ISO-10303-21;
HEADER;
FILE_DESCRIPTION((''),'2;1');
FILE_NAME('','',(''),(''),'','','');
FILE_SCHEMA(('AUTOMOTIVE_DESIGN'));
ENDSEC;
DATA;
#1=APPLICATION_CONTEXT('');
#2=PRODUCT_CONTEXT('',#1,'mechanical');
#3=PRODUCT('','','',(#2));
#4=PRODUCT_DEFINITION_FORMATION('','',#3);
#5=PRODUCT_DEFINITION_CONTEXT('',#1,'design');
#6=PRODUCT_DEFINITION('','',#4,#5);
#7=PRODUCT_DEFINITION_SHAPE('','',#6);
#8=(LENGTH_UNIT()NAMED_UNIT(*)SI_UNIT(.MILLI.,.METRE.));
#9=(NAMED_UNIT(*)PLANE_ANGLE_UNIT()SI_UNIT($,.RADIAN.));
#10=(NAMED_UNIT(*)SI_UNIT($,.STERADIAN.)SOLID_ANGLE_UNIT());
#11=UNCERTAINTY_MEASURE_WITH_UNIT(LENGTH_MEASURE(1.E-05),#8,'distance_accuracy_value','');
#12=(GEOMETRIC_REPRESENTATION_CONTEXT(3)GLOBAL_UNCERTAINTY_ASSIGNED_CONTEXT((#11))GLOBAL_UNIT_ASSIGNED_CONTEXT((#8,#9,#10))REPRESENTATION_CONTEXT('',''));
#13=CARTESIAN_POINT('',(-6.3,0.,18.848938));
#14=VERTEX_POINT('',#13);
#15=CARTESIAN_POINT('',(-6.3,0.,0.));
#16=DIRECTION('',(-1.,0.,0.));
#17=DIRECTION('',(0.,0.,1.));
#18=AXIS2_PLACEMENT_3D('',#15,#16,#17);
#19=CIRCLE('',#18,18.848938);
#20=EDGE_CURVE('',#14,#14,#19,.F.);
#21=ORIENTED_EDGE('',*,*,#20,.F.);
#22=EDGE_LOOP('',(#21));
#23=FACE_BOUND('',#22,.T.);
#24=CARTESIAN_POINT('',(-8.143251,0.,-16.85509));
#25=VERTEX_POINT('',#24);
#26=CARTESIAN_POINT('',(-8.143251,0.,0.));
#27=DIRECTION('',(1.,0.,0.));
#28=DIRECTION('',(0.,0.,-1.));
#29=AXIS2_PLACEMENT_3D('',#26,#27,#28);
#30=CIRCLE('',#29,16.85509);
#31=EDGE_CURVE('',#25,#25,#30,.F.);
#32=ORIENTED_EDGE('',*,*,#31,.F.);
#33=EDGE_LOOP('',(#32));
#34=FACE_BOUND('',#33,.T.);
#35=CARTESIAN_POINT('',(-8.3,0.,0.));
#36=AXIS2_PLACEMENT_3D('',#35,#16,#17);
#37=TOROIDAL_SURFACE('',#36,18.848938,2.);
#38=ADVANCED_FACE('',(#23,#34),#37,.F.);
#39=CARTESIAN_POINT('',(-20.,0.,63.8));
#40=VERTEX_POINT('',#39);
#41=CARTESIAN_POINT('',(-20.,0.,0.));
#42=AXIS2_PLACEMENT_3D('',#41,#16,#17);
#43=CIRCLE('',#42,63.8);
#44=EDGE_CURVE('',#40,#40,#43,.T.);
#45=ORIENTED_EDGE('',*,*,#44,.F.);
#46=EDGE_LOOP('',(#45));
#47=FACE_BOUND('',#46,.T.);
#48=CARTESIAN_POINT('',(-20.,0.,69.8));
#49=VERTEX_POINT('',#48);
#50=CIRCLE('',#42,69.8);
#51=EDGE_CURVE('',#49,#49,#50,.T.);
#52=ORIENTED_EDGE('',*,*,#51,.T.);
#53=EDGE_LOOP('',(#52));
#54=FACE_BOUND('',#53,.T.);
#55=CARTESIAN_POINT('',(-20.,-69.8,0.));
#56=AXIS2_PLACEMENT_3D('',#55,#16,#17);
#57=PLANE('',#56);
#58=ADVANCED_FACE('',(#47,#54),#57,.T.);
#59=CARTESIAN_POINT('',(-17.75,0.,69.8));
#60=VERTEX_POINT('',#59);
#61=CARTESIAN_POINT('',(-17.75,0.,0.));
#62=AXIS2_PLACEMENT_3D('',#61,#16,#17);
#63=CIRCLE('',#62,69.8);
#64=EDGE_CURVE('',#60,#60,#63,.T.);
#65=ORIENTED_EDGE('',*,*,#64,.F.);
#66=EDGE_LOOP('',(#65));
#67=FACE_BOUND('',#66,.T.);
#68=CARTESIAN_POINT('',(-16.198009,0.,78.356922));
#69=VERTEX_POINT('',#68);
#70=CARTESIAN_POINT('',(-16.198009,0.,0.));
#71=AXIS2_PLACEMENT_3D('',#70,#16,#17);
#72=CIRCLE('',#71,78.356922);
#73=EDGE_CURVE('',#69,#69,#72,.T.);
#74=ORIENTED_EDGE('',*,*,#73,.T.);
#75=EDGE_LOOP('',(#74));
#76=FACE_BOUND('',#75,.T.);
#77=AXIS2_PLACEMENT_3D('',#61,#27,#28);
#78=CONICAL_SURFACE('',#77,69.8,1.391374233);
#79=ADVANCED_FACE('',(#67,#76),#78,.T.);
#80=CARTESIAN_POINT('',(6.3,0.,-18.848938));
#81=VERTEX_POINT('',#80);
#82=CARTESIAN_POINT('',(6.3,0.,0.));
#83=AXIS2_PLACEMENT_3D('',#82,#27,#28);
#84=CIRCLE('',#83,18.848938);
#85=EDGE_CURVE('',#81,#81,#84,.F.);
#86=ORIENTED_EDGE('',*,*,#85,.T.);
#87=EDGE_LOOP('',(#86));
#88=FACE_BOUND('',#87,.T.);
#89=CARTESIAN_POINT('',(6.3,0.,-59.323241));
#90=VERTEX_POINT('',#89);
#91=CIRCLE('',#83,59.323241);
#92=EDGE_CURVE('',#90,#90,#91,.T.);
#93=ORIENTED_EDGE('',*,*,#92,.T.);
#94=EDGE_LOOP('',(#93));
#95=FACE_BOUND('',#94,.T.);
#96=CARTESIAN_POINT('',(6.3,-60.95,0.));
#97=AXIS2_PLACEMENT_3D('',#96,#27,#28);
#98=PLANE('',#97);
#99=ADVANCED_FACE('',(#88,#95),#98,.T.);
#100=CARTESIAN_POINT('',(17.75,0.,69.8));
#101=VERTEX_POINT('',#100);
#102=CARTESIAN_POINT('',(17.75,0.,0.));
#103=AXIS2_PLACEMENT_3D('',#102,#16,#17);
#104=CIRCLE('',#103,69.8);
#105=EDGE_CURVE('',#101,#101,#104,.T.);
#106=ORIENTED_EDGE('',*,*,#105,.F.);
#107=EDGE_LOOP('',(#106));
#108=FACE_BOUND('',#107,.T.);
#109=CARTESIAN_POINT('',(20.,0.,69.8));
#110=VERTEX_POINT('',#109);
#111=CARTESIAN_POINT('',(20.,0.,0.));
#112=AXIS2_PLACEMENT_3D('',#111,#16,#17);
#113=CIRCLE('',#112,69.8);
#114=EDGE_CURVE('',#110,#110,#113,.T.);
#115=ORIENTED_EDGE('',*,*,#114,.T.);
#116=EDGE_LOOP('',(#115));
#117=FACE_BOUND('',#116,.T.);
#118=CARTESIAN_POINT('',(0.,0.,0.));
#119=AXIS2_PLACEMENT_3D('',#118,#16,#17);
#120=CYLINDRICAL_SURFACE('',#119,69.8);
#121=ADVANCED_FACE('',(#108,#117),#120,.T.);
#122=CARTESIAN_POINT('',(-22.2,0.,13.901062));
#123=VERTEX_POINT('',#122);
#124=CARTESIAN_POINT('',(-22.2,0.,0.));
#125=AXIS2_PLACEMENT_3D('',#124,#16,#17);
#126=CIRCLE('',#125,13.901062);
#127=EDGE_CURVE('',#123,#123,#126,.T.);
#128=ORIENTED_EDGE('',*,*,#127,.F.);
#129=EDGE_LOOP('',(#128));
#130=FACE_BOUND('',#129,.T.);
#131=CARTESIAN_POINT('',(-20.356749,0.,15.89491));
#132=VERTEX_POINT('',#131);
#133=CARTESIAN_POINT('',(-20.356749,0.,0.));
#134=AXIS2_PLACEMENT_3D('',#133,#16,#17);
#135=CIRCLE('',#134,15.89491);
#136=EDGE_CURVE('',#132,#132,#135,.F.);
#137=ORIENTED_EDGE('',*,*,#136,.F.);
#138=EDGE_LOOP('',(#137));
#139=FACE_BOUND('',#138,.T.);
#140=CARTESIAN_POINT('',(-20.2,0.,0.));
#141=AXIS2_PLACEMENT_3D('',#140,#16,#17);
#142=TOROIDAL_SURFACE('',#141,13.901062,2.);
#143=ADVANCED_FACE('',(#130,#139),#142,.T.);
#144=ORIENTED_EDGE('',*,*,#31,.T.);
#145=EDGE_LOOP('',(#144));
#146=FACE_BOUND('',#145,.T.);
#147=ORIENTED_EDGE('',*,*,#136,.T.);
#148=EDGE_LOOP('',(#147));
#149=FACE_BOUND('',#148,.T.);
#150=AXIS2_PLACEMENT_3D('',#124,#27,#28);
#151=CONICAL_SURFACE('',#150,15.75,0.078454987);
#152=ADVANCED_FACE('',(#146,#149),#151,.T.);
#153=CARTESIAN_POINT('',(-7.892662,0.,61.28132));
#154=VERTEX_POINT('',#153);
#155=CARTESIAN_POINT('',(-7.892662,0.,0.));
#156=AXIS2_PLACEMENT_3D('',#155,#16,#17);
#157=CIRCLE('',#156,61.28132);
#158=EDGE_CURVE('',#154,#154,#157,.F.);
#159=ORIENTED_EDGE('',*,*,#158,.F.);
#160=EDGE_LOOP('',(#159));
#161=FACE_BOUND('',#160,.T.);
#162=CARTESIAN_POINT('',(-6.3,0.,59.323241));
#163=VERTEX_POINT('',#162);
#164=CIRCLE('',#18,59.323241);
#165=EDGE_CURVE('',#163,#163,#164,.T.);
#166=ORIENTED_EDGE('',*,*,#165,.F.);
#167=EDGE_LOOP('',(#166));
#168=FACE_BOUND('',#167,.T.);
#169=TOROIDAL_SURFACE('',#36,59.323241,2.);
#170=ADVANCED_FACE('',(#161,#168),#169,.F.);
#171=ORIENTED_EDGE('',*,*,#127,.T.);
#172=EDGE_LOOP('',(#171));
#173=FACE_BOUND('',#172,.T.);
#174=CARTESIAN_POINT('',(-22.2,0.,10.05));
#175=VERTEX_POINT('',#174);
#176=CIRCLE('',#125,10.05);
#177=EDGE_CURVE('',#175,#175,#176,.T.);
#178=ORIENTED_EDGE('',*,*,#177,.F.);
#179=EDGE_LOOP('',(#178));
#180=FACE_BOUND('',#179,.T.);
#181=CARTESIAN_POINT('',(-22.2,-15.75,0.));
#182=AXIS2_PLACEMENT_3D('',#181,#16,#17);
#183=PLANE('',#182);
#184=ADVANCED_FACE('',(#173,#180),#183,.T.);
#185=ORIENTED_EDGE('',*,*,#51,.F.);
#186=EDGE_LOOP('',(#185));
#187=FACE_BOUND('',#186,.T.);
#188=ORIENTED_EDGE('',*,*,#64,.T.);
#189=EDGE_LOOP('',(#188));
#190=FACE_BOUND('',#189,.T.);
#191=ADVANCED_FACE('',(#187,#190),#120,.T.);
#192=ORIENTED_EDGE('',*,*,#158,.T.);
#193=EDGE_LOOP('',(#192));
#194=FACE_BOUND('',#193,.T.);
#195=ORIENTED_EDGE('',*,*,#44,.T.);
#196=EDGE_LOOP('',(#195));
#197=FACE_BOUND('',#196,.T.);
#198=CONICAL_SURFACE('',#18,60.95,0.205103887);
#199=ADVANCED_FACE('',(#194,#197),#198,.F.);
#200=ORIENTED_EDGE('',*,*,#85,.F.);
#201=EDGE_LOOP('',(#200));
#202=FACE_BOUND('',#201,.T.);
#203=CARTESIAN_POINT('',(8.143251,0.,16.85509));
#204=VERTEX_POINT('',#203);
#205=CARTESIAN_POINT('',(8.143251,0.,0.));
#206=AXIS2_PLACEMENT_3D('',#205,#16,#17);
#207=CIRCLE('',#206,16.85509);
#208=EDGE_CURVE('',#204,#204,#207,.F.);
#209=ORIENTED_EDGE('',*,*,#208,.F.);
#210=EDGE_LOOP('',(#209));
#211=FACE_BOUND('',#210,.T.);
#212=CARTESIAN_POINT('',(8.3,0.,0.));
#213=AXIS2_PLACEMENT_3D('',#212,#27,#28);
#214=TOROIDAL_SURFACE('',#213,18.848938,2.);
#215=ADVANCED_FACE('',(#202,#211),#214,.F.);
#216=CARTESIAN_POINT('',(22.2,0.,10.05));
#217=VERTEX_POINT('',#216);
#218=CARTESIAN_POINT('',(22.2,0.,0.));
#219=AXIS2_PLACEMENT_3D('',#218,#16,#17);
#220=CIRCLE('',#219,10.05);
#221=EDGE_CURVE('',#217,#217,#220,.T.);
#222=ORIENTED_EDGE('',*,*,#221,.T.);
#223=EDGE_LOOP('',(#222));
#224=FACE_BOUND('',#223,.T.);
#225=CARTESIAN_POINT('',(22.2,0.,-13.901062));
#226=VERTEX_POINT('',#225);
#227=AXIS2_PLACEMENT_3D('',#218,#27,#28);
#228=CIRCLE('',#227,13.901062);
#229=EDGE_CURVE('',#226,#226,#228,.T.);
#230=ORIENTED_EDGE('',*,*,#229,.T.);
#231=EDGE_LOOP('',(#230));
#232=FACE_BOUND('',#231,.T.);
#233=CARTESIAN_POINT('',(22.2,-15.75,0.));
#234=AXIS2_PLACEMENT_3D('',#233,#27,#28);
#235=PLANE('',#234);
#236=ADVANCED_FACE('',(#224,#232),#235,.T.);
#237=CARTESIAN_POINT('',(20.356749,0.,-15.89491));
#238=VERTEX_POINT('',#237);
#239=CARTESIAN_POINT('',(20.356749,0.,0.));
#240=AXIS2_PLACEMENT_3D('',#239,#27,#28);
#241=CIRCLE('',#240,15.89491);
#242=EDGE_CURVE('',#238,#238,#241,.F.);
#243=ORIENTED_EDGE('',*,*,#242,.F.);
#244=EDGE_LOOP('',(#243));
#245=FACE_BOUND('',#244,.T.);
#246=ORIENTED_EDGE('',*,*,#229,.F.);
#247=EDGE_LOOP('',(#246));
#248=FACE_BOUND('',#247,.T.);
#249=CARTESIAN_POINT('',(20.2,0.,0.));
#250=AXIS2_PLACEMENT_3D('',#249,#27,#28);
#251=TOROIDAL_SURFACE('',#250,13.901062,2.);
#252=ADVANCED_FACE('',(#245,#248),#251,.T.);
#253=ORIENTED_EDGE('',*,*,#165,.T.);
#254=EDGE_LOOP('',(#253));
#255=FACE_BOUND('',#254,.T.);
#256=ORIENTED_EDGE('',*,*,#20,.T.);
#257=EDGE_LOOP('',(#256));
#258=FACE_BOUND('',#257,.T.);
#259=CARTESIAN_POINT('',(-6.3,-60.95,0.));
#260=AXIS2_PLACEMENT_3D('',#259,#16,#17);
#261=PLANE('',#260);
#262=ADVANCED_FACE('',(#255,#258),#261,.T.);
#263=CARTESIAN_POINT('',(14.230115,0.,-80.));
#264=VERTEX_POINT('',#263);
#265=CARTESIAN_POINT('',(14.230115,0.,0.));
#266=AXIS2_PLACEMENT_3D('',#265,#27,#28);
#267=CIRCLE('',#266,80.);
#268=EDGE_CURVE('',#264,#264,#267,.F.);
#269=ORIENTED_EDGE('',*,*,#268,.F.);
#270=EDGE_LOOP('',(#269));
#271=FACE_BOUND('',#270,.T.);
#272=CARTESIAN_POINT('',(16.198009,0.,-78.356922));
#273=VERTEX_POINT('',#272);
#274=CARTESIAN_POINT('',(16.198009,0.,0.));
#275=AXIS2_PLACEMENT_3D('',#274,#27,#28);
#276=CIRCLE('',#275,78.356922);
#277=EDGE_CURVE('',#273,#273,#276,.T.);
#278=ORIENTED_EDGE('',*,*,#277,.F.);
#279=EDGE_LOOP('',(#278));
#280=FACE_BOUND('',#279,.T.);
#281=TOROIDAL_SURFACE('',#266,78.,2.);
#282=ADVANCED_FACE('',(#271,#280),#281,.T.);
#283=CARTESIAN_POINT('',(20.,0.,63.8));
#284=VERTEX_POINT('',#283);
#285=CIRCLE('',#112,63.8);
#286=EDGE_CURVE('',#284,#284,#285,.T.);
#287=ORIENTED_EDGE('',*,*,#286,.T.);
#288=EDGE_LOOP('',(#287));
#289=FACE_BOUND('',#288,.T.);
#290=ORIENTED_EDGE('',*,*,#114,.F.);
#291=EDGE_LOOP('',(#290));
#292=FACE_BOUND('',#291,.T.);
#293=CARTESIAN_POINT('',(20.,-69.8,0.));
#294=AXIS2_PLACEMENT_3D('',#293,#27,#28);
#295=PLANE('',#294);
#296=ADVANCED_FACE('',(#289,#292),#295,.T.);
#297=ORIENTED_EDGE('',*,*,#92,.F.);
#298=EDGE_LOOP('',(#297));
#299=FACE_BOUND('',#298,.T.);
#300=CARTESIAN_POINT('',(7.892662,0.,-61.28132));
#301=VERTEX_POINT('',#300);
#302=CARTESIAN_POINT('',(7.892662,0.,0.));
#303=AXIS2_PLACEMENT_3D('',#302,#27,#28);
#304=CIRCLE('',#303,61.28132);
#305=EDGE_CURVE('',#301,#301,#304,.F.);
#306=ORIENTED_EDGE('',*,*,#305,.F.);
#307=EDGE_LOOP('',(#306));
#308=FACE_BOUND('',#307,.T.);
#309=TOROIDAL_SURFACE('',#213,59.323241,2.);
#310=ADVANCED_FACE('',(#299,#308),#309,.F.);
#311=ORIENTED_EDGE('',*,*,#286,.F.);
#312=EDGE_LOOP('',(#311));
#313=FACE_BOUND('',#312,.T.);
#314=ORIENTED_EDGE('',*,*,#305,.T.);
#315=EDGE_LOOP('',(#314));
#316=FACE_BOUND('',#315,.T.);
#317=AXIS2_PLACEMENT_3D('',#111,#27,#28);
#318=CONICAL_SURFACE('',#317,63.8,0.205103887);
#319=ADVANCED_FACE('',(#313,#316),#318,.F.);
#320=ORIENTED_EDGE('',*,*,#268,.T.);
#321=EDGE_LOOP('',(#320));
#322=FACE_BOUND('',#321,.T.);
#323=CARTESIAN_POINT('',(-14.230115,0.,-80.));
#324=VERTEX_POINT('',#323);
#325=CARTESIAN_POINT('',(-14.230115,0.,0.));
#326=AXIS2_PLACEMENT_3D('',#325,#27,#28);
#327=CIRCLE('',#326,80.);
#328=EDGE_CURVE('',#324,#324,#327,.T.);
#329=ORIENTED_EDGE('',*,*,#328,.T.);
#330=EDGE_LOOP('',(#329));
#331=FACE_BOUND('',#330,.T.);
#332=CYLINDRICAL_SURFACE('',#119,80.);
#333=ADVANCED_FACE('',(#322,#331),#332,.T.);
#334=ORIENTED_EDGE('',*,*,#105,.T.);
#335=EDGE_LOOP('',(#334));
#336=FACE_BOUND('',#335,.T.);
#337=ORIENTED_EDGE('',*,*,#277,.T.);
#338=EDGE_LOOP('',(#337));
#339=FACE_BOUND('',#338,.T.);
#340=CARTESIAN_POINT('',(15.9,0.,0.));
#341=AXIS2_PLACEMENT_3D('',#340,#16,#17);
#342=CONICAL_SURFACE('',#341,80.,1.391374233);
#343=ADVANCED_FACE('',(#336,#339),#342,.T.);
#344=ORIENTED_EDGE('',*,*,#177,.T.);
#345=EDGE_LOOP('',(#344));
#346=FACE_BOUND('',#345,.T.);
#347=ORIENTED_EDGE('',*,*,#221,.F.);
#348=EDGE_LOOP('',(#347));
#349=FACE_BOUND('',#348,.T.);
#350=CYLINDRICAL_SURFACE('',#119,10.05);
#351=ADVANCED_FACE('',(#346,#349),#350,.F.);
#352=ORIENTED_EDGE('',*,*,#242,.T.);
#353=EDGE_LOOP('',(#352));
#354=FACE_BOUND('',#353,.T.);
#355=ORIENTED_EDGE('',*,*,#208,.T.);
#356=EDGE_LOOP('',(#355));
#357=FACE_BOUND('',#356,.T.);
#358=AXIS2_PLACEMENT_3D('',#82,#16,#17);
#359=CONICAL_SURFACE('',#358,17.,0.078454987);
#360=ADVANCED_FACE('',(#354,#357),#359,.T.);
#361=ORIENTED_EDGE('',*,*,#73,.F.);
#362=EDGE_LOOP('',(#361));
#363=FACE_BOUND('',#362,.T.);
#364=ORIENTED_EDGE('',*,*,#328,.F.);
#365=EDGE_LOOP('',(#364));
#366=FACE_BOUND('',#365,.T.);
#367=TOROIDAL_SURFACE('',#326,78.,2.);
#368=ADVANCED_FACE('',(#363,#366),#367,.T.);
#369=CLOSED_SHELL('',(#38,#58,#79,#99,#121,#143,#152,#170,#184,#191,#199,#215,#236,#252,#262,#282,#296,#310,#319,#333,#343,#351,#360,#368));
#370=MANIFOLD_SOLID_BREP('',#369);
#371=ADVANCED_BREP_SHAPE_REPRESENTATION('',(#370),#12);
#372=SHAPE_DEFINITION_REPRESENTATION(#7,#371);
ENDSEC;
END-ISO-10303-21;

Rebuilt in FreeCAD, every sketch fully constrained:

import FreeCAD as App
import Part
import Sketcher

V = App.Vector
Q = App.Units.Quantity


def edges_at(feature, points):
    """Names of the edges that pass closest to the given points."""
    edges = feature.Shape.Edges
    near = lambda p: min(range(len(edges)), key=lambda i: edges[i].distToShape(Part.Vertex(*p))[0])
    return sorted({f"Edge{near(p) + 1}" for p in points})


def add_polygon(sketch, points):
    """Adds a closed chain of lines whose ends are joined by coincident constraints."""
    first, n = sketch.GeometryCount, len(points)
    for a, b in zip(points, points[1:] + points[:1]):
        sketch.addGeometry(Part.LineSegment(App.Vector(*a, 0), App.Vector(*b, 0)), False)
    for i in range(n):
        sketch.addConstraint(Sketcher.Constraint("Coincident", first + i, 2, first + (i + 1) % n, 1))

doc = App.newDocument("Part")
body = doc.addObject("PartDesign::Body", "Body")

# Sketch on XY plane
sketch1 = body.newObject("Sketcher::SketchObject", "Sketch")
sketch1.AttachmentSupport = (doc.getObject("XY_Plane"), [""])
sketch1.MapMode = "FlatFace"
add_polygon(sketch1, [(-15.9, -80), (15.9, -80), (17.75, -69.8), (20, -69.8), (20, -63.8), (6.3, -60.95), (6.3, -17), (22.2, -15.75), (22.2, -10.05), (-22.2, -10.05), (-22.2, -15.75), (-6.3, -17), (-6.3, -60.95), (-20, -63.8), (-20, -69.8), (-17.75, -69.8)])  # lines 0-15
sketch1.addConstraint(Sketcher.Constraint("Horizontal", 0))
sketch1.addConstraint(Sketcher.Constraint("Horizontal", 2))
sketch1.addConstraint(Sketcher.Constraint("Vertical", 3))
sketch1.addConstraint(Sketcher.Constraint("Vertical", 5))
sketch1.addConstraint(Sketcher.Constraint("Vertical", 7))
sketch1.addConstraint(Sketcher.Constraint("Horizontal", 8))
sketch1.addConstraint(Sketcher.Constraint("Vertical", 9))
sketch1.addConstraint(Sketcher.Constraint("Vertical", 11))
sketch1.addConstraint(Sketcher.Constraint("Vertical", 13))
sketch1.addConstraint(Sketcher.Constraint("Horizontal", 14))
sketch1.addConstraint(Sketcher.Constraint("Symmetric", 6, 2, 9, 2, -2))
sketch1.addConstraint(Sketcher.Constraint("Symmetric", 5, 2, 10, 2, -2))
sketch1.addConstraint(Sketcher.Constraint("Symmetric", 3, 2, 12, 2, -2))
sketch1.addConstraint(Sketcher.Constraint("Symmetric", 1, 2, 14, 2, -2))
sketch1.addConstraint(Sketcher.Constraint("Horizontal", 4, 2, 11, 2))
sketch1.addConstraint(Sketcher.Constraint("Equal", 1, 15))
sketch1.addConstraint(Sketcher.Constraint("DistanceY", 3, 1, 3, 2, Q("6 mm")))
sketch1.addConstraint(Sketcher.Constraint("DistanceX", 0, 1, 0, 2, Q("31.8 mm")))
sketch1.addConstraint(Sketcher.Constraint("DistanceX", 8, 2, 8, 1, Q("44.4 mm")))
sketch1.addConstraint(Sketcher.Constraint("DistanceY", 7, 1, 7, 2, Q("5.7 mm")))
sketch1.addConstraint(Sketcher.Constraint("DistanceY", 0, 2, -1, 1, Q("80 mm")))
sketch1.addConstraint(Sketcher.Constraint("DistanceX", -1, 1, 2, 2, Q("20 mm")))
sketch1.addConstraint(Sketcher.Constraint("DistanceY", 5, 2, -1, 1, Q("17 mm")))
sketch1.addConstraint(Sketcher.Constraint("DistanceX", 2, 1, 2, 2, Q("2.25 mm")))
sketch1.addConstraint(Sketcher.Constraint("DistanceY", 5, 1, 5, 2, Q("43.95 mm")))
sketch1.addConstraint(Sketcher.Constraint("DistanceY", 1, 2, -1, 1, Q("69.8 mm")))
sketch1.addConstraint(Sketcher.Constraint("DistanceX", -1, 1, 4, 2, Q("6.3 mm")))
sketch1.addConstraint(Sketcher.Constraint("DistanceY", 4, 2, 6, 2, Q("45.2 mm")))
revolution = body.newObject("PartDesign::Revolution", "Revolution")
revolution.Profile = sketch1
revolution.ReferenceAxis = (sketch1, ["H_Axis"])
revolution.Angle = 360
doc.recompute()

fillet = body.newObject("PartDesign::Fillet", "Fillet")
fillet.Base = (revolution, edges_at(revolution, [
    (15.9, 0, -80),
    (-15.9, 0, -80),
    (-6.3, 0, -60.95),
    (-6.3, 0, -17),
    (-22.2, 0, -15.75),
    (22.2, 0, -15.75),
    (6.3, 0, -17),
    (6.3, 0, -60.95),
]))
fillet.Radius = 2

doc.recompute()
